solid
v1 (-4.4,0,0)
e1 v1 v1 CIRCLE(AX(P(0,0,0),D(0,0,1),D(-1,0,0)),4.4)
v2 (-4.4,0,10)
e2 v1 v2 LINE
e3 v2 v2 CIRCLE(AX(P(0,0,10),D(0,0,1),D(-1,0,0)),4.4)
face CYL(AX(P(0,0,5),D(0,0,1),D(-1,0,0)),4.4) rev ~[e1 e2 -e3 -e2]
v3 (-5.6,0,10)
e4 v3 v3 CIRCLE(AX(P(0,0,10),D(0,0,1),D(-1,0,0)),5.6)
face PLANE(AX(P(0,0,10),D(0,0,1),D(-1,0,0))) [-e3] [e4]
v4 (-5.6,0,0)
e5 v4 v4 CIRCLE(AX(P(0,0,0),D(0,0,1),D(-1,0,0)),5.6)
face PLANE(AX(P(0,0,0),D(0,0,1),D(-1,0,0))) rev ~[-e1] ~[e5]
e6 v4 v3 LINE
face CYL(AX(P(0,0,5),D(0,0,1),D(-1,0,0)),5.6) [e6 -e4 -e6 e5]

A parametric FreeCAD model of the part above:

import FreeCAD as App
import Part
import Sketcher
Q = App.Units.Quantity

doc = App.newDocument("Part")
params = doc.addObject("Spreadsheet::Sheet", "Params")
for row, (alias, value) in enumerate([
    ("sketch1_height", "10 mm"),
    ("sketch1_width", "1.2 mm"),
    ("revolution_angle", "360 deg"),
], start=1):
    params.set(f"A{row}", alias)
    params.set(f"B{row}", "=" + value)
    params.setAlias(f"B{row}", alias)

body = doc.addObject("PartDesign::Body", "Body")

sketch1 = body.newObject("Sketcher::SketchObject", "Sketch")
sketch1.AttachmentSupport = (doc.getObject("XZ_Plane"), [""])
sketch1.MapMode = "FlatFace"
sketch1.addGeometry([
    Part.LineSegment(App.Vector(-5.6, 10, 0), App.Vector(-5.6, 0, 0)),
    Part.LineSegment(App.Vector(-5.6, 0, 0), App.Vector(-4.4, 0, 0)),
    Part.LineSegment(App.Vector(-4.4, 0, 0), App.Vector(-4.4, 10, 0)),
    Part.LineSegment(App.Vector(-4.4, 10, 0), App.Vector(-5.6, 10, 0)),
], False)
sketch1.addConstraint([
    Sketcher.Constraint("Coincident", 0, 2, 1, 1),
    Sketcher.Constraint("Coincident", 1, 2, 2, 1),
    Sketcher.Constraint("Coincident", 2, 2, 3, 1),
    Sketcher.Constraint("Coincident", 3, 2, 0, 1),
    Sketcher.Constraint("Vertical", 0),
    Sketcher.Constraint("Horizontal", 1),
    Sketcher.Constraint("Vertical", 2),
    Sketcher.Constraint("Horizontal", 3),
    Sketcher.Constraint("PointOnObject", 0, 2, -1),
    Sketcher.Constraint("DistanceY", 0, 2, 0, 1, Q("10 mm")),
    Sketcher.Constraint("DistanceX", 1, 1, 1, 2, Q("1.2 mm")),
    Sketcher.Constraint("DistanceX", 0, 2, -1, 1, Q("5.6 mm")),
])
sketch1.setExpression("Constraints[9]", "Params.sketch1_height")
sketch1.setExpression("Constraints[10]", "Params.sketch1_width")
revolution = body.newObject("PartDesign::Revolution", "Revolution")
revolution.Profile = sketch1
revolution.ReferenceAxis = (sketch1, ["V_Axis"])
revolution.setExpression("Angle", "Params.revolution_angle")

doc.recompute()
